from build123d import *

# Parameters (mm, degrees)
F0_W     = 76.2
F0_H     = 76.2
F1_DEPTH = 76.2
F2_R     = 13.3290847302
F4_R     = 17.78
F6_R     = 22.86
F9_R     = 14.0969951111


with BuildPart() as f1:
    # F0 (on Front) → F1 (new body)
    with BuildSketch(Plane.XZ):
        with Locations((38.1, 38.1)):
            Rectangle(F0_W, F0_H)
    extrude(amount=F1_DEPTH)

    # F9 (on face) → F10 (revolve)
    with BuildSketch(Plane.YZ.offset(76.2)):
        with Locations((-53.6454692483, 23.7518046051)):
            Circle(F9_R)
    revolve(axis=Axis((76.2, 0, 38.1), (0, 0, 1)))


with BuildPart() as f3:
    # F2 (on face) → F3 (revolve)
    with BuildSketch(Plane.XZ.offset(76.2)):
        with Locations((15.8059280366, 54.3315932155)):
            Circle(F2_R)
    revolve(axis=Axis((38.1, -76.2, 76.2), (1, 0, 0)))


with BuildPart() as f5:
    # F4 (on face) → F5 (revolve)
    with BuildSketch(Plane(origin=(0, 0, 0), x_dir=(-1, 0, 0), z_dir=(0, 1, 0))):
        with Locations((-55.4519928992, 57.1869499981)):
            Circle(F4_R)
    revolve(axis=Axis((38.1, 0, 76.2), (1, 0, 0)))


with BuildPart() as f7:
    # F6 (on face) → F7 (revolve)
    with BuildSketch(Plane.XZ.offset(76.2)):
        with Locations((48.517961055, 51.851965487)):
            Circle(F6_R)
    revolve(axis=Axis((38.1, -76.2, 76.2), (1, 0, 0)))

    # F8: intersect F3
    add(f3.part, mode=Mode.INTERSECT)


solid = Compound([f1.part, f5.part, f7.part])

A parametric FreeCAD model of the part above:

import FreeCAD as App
import Part
import Sketcher

V = App.Vector
Q = App.Units.Quantity

doc = App.newDocument("Part")
body = doc.addObject("PartDesign::Body", "Body")

# Sketch on XZ plane
sketch1 = doc.addObject("Sketcher::SketchObject", "Sketch")
body.addObject(sketch1)
sketch1.AttachmentSupport = (doc.XZ_Plane, [""])
sketch1.MapMode = "FlatFace"
sketch1.addGeometry(Part.LineSegment(V(0, 76, 0), V(0, 0, 0)), False)
sketch1.addGeometry(Part.LineSegment(V(0, 0, 0), V(76, 0, 0)), False)
sketch1.addGeometry(Part.LineSegment(V(76, 0, 0), V(76, 76, 0)), False)
sketch1.addGeometry(Part.LineSegment(V(76, 76, 0), V(0, 76, 0)), False)
sketch1.addConstraint(Sketcher.Constraint("Coincident", 0, 2, 1, 1))
sketch1.addConstraint(Sketcher.Constraint("Coincident", 1, 2, 2, 1))
sketch1.addConstraint(Sketcher.Constraint("Coincident", 2, 2, 3, 1))
sketch1.addConstraint(Sketcher.Constraint("Coincident", 3, 2, 0, 1))
sketch1.addConstraint(Sketcher.Constraint("Vertical", 0))
sketch1.addConstraint(Sketcher.Constraint("Horizontal", 1))
sketch1.addConstraint(Sketcher.Constraint("Vertical", 2))
sketch1.addConstraint(Sketcher.Constraint("Horizontal", 3))
sketch1.addConstraint(Sketcher.Constraint("Coincident", 0, 2, -1, 1))
sketch1.addConstraint(Sketcher.Constraint("Equal", 3, 0))
sketch1.addConstraint(Sketcher.Constraint("DistanceX", 1, 1, 1, 2, Q("3 in")))
pad1 = doc.addObject("PartDesign::Pad", "Pad")
body.addObject(pad1)
pad1.Profile = sketch1
pad1.Length = Q("3 in")

# Sketch on YZ plane
sketch2 = doc.addObject("Sketcher::SketchObject", "Sketch001")
body.addObject(sketch2)
sketch2.AttachmentSupport = (doc.YZ_Plane, [""])
sketch2.MapMode = "FlatFace"
sketch2.AttachmentOffset = App.Placement(V(0, 0, 3 * 25.4), App.Rotation())
sketch2.addGeometry(Part.Circle(V(-54, 24, 0), V(0, 0, 1), 14), False)
sketch2.addConstraint(Sketcher.Constraint("Diameter", 0, 28.19399))
sketch2.addConstraint(Sketcher.Constraint("DistanceX", 0, 3, -1, 1, 53.645469))
sketch2.addConstraint(Sketcher.Constraint("DistanceY", -1, 1, 0, 3, 23.751805))
revolution = doc.addObject("PartDesign::Revolution", "Revolution")
body.addObject(revolution)
revolution.Profile = sketch2
revolution.ReferenceAxis = (sketch2, ["V_Axis"])
revolution.Angle = 360
body2 = doc.addObject("PartDesign::Body", "Body001")

# Sketch on XZ plane
sketch3 = doc.addObject("Sketcher::SketchObject", "Sketch002")
body2.addObject(sketch3)
sketch3.AttachmentSupport = (doc.getObject("XZ_Plane001"), [""])
sketch3.MapMode = "FlatFace"
sketch3.AttachmentOffset = App.Placement(V(0, 0, 3 * 25.4), App.Rotation())
sketch3.addGeometry(Part.Circle(V(16, 54, 0), V(0, 0, 1), 13), False)
sketch3.addGeometry(Part.LineSegment(V(16, 76, 0), V(26, 76, 0)), True)  # axis
sketch3.addConstraint(Sketcher.Constraint("Horizontal", 1))
sketch3.addConstraint(Sketcher.Constraint("Vertical", 0, 3, 1, 1))
sketch3.addConstraint(Sketcher.Constraint("DistanceY", -1, 1, 1, 1, Q("3 in")))
sketch3.addConstraint(Sketcher.Constraint("Diameter", 0, 26.658169))
sketch3.addConstraint(Sketcher.Constraint("DistanceX", 1, 1, 1, 2, 10.0))
sketch3.addConstraint(Sketcher.Constraint("DistanceX", -1, 1, 0, 3, 15.805928))
sketch3.addConstraint(Sketcher.Constraint("DistanceY", -1, 1, 0, 3, 54.331593))
revolution2 = doc.addObject("PartDesign::Revolution", "Revolution001")
body2.addObject(revolution2)
revolution2.Profile = sketch3
revolution2.ReferenceAxis = (sketch3, ["Axis0"])
revolution2.Angle = 360
body3 = doc.addObject("PartDesign::Body", "Body002")

# Sketch on XZ plane
sketch4 = doc.addObject("Sketcher::SketchObject", "Sketch003")
body3.addObject(sketch4)
sketch4.AttachmentSupport = (doc.getObject("XZ_Plane002"), [""])
sketch4.MapMode = "FlatFace"
sketch4.addGeometry(Part.Circle(V(55, 57, 0), V(0, 0, 1), 18), False)
sketch4.addGeometry(Part.LineSegment(V(55, 76, 0), V(65, 76, 0)), True)  # axis
sketch4.addConstraint(Sketcher.Constraint("Horizontal", 1))
sketch4.addConstraint(Sketcher.Constraint("Vertical", 0, 3, 1, 1))
sketch4.addConstraint(Sketcher.Constraint("Diameter", 0, Q("1.4 in")))
sketch4.addConstraint(Sketcher.Constraint("DistanceY", -1, 1, 1, 1, Q("3 in")))
sketch4.addConstraint(Sketcher.Constraint("DistanceX", 1, 1, 1, 2, 10.0))
sketch4.addConstraint(Sketcher.Constraint("DistanceY", -1, 1, 0, 3, 57.18695))
sketch4.addConstraint(Sketcher.Constraint("DistanceX", -1, 1, 0, 3, 55.451993))
revolution3 = doc.addObject("PartDesign::Revolution", "Revolution002")
body3.addObject(revolution3)
revolution3.Profile = sketch4
revolution3.ReferenceAxis = (sketch4, ["Axis0"])
revolution3.Angle = 360
body4 = doc.addObject("PartDesign::Body", "Body003")

# Sketch on XZ plane
sketch5 = doc.addObject("Sketcher::SketchObject", "Sketch004")
body4.addObject(sketch5)
sketch5.AttachmentSupport = (doc.getObject("XZ_Plane003"), [""])
sketch5.MapMode = "FlatFace"
sketch5.AttachmentOffset = App.Placement(V(0, 0, 3 * 25.4), App.Rotation())
sketch5.addGeometry(Part.Circle(V(49, 52, 0), V(0, 0, 1), 23), False)
sketch5.addGeometry(Part.LineSegment(V(49, 76, 0), V(59, 76, 0)), True)  # axis
sketch5.addConstraint(Sketcher.Constraint("Horizontal", 1))
sketch5.addConstraint(Sketcher.Constraint("Vertical", 0, 3, 1, 1))
sketch5.addConstraint(Sketcher.Constraint("Diameter", 0, Q("1.8 in")))
sketch5.addConstraint(Sketcher.Constraint("DistanceY", -1, 1, 1, 1, Q("3 in")))
sketch5.addConstraint(Sketcher.Constraint("DistanceX", 1, 1, 1, 2, 10.0))
sketch5.addConstraint(Sketcher.Constraint("DistanceX", -1, 1, 0, 3, 48.517961))
sketch5.addConstraint(Sketcher.Constraint("DistanceY", -1, 1, 0, 3, 51.851965))
revolution4 = doc.addObject("PartDesign::Revolution", "Revolution003")
body4.addObject(revolution4)
revolution4.Profile = sketch5
revolution4.ReferenceAxis = (sketch5, ["Axis0"])
revolution4.Angle = 360
doc.recompute()

boolean = doc.addObject("PartDesign::Boolean", "Boolean")
body4.addObject(boolean)
boolean.Type = "Common"
boolean.addObjects([body2])

doc.recompute()
